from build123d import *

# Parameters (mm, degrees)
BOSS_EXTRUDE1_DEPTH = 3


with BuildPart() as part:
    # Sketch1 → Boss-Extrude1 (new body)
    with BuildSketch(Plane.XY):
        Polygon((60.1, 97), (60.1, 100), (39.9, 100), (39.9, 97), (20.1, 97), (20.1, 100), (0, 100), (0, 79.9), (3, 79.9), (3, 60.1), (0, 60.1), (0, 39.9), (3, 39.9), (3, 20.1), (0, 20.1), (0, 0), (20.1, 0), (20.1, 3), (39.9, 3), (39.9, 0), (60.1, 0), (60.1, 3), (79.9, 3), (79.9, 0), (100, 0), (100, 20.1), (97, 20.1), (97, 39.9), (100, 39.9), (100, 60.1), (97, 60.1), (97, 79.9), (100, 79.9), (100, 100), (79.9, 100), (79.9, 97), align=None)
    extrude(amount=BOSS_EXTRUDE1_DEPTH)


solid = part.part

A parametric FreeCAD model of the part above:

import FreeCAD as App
import Part
import Sketcher
from FreeCAD import Vector
Q = App.Units.Quantity


def add_polygon(sketch, points):
    """Adds a closed chain of lines whose ends are joined by coincident constraints."""
    first, n = sketch.GeometryCount, len(points)
    for a, b in zip(points, points[1:] + points[:1]):
        sketch.addGeometry(Part.LineSegment(App.Vector(*a, 0), App.Vector(*b, 0)), False)
    for i in range(n):
        sketch.addConstraint(Sketcher.Constraint("Coincident", first + i, 2, first + (i + 1) % n, 1))

doc = App.newDocument("Part")
body = doc.addObject("PartDesign::Body", "Body")

# Sketch on XY plane
sketch1 = body.newObject("Sketcher::SketchObject", "Sketch")
sketch1.AttachmentSupport = (doc.getObject("XY_Plane"), [""])
sketch1.MapMode = "FlatFace"
add_polygon(sketch1, [(60.1, 97), (60.1, 100), (39.9, 100), (39.9, 97), (20.1, 97), (20.1, 100), (0, 100), (0, 79.9), (3, 79.9), (3, 60.1), (0, 60.1), (0, 39.9), (3, 39.9), (3, 20.1), (0, 20.1), (0, 0), (20.1, 0), (20.1, 3), (39.9, 3), (39.9, 0), (60.1, 0), (60.1, 3), (79.9, 3), (79.9, 0), (100, 0), (100, 20.1), (97, 20.1), (97, 39.9), (100, 39.9), (100, 60.1), (97, 60.1), (97, 79.9), (100, 79.9), (100, 100), (79.9, 100), (79.9, 97)])  # lines 0-35
sketch1.addConstraint([
    Sketcher.Constraint("Vertical", 0),
    Sketcher.Constraint("Horizontal", 1),
    Sketcher.Constraint("Vertical", 2),
    Sketcher.Constraint("Horizontal", 3),
    Sketcher.Constraint("Vertical", 4),
    Sketcher.Constraint("Horizontal", 5),
    Sketcher.Constraint("Vertical", 6),
    Sketcher.Constraint("Horizontal", 7),
    Sketcher.Constraint("Vertical", 8),
    Sketcher.Constraint("Horizontal", 9),
    Sketcher.Constraint("Vertical", 10),
    Sketcher.Constraint("Horizontal", 11),
    Sketcher.Constraint("Vertical", 12),
    Sketcher.Constraint("Horizontal", 13),
    Sketcher.Constraint("Vertical", 14),
    Sketcher.Constraint("Horizontal", 15),
    Sketcher.Constraint("Vertical", 16),
    Sketcher.Constraint("Horizontal", 17),
    Sketcher.Constraint("Vertical", 18),
    Sketcher.Constraint("Horizontal", 19),
    Sketcher.Constraint("Vertical", 20),
    Sketcher.Constraint("Horizontal", 21),
    Sketcher.Constraint("Vertical", 22),
    Sketcher.Constraint("Horizontal", 23),
    Sketcher.Constraint("Vertical", 24),
    Sketcher.Constraint("Horizontal", 25),
    Sketcher.Constraint("Vertical", 26),
    Sketcher.Constraint("Horizontal", 27),
    Sketcher.Constraint("Vertical", 28),
    Sketcher.Constraint("Horizontal", 29),
    Sketcher.Constraint("Vertical", 30),
    Sketcher.Constraint("Horizontal", 31),
    Sketcher.Constraint("Vertical", 32),
    Sketcher.Constraint("Horizontal", 33),
    Sketcher.Constraint("Vertical", 34),
    Sketcher.Constraint("Horizontal", 35),
    Sketcher.Constraint("Coincident", 14, 2, -1, 1),
    Sketcher.Constraint("PointOnObject", 5, 2, -2),
    Sketcher.Constraint("PointOnObject", 9, 2, -2),
    Sketcher.Constraint("PointOnObject", 18, 2, -1),
    Sketcher.Constraint("PointOnObject", 22, 2, -1),
    Sketcher.Constraint("Horizontal", 1, 2, 4, 2),
    Sketcher.Constraint("Horizontal", 17, 2, 20, 2),
    Sketcher.Constraint("Horizontal", 13, 2, 24, 2),
    Sketcher.Constraint("Horizontal", 11, 2, 26, 2),
    Sketcher.Constraint("Horizontal", 9, 2, 28, 2),
    Sketcher.Constraint("Horizontal", 7, 2, 30, 2),
    Sketcher.Constraint("Horizontal", 5, 2, 32, 2),
    Sketcher.Constraint("Horizontal", 3, 2, 34, 2),
    Sketcher.Constraint("Vertical", 8, 2, 11, 2),
    Sketcher.Constraint("Vertical", 4, 2, 15, 2),
    Sketcher.Constraint("Vertical", 2, 2, 17, 2),
    Sketcher.Constraint("Vertical", 0, 2, 19, 2),
    Sketcher.Constraint("Vertical", 24, 2, 27, 2),
    Sketcher.Constraint("Vertical", 26, 2, 29, 2),
    Sketcher.Constraint("Vertical", 28, 2, 31, 2),
    Sketcher.Constraint("Vertical", 22, 2, 33, 2),
    Sketcher.Constraint("Equal", 17, 21),
    Sketcher.Constraint("Equal", 15, 23),
    Sketcher.Constraint("Equal", 13, 25),
    Sketcher.Constraint("Equal", 31, 0),
    Sketcher.Constraint("Equal", 33, 6),
    Sketcher.Constraint("Equal", 35, 8),
    Sketcher.Constraint("Equal", 19, 10),
    Sketcher.Constraint("Equal", 8, 12),
    Sketcher.Constraint("Equal", 6, 14),
    Sketcher.Constraint("Equal", 4, 16),
    Sketcher.Constraint("DistanceX", 7, 1, 7, 2, Q("3 mm")),
    Sketcher.Constraint("DistanceX", 1, 2, 1, 1, Q("20.2 mm")),
    Sketcher.Constraint("DistanceX", 3, 2, 3, 1, Q("19.8 mm")),
    Sketcher.Constraint("DistanceX", 5, 2, 5, 1, Q("20.1 mm")),
])
pad1 = body.newObject("PartDesign::Pad", "Pad")
pad1.Profile = sketch1
pad1.Length = 3

doc.recompute()
